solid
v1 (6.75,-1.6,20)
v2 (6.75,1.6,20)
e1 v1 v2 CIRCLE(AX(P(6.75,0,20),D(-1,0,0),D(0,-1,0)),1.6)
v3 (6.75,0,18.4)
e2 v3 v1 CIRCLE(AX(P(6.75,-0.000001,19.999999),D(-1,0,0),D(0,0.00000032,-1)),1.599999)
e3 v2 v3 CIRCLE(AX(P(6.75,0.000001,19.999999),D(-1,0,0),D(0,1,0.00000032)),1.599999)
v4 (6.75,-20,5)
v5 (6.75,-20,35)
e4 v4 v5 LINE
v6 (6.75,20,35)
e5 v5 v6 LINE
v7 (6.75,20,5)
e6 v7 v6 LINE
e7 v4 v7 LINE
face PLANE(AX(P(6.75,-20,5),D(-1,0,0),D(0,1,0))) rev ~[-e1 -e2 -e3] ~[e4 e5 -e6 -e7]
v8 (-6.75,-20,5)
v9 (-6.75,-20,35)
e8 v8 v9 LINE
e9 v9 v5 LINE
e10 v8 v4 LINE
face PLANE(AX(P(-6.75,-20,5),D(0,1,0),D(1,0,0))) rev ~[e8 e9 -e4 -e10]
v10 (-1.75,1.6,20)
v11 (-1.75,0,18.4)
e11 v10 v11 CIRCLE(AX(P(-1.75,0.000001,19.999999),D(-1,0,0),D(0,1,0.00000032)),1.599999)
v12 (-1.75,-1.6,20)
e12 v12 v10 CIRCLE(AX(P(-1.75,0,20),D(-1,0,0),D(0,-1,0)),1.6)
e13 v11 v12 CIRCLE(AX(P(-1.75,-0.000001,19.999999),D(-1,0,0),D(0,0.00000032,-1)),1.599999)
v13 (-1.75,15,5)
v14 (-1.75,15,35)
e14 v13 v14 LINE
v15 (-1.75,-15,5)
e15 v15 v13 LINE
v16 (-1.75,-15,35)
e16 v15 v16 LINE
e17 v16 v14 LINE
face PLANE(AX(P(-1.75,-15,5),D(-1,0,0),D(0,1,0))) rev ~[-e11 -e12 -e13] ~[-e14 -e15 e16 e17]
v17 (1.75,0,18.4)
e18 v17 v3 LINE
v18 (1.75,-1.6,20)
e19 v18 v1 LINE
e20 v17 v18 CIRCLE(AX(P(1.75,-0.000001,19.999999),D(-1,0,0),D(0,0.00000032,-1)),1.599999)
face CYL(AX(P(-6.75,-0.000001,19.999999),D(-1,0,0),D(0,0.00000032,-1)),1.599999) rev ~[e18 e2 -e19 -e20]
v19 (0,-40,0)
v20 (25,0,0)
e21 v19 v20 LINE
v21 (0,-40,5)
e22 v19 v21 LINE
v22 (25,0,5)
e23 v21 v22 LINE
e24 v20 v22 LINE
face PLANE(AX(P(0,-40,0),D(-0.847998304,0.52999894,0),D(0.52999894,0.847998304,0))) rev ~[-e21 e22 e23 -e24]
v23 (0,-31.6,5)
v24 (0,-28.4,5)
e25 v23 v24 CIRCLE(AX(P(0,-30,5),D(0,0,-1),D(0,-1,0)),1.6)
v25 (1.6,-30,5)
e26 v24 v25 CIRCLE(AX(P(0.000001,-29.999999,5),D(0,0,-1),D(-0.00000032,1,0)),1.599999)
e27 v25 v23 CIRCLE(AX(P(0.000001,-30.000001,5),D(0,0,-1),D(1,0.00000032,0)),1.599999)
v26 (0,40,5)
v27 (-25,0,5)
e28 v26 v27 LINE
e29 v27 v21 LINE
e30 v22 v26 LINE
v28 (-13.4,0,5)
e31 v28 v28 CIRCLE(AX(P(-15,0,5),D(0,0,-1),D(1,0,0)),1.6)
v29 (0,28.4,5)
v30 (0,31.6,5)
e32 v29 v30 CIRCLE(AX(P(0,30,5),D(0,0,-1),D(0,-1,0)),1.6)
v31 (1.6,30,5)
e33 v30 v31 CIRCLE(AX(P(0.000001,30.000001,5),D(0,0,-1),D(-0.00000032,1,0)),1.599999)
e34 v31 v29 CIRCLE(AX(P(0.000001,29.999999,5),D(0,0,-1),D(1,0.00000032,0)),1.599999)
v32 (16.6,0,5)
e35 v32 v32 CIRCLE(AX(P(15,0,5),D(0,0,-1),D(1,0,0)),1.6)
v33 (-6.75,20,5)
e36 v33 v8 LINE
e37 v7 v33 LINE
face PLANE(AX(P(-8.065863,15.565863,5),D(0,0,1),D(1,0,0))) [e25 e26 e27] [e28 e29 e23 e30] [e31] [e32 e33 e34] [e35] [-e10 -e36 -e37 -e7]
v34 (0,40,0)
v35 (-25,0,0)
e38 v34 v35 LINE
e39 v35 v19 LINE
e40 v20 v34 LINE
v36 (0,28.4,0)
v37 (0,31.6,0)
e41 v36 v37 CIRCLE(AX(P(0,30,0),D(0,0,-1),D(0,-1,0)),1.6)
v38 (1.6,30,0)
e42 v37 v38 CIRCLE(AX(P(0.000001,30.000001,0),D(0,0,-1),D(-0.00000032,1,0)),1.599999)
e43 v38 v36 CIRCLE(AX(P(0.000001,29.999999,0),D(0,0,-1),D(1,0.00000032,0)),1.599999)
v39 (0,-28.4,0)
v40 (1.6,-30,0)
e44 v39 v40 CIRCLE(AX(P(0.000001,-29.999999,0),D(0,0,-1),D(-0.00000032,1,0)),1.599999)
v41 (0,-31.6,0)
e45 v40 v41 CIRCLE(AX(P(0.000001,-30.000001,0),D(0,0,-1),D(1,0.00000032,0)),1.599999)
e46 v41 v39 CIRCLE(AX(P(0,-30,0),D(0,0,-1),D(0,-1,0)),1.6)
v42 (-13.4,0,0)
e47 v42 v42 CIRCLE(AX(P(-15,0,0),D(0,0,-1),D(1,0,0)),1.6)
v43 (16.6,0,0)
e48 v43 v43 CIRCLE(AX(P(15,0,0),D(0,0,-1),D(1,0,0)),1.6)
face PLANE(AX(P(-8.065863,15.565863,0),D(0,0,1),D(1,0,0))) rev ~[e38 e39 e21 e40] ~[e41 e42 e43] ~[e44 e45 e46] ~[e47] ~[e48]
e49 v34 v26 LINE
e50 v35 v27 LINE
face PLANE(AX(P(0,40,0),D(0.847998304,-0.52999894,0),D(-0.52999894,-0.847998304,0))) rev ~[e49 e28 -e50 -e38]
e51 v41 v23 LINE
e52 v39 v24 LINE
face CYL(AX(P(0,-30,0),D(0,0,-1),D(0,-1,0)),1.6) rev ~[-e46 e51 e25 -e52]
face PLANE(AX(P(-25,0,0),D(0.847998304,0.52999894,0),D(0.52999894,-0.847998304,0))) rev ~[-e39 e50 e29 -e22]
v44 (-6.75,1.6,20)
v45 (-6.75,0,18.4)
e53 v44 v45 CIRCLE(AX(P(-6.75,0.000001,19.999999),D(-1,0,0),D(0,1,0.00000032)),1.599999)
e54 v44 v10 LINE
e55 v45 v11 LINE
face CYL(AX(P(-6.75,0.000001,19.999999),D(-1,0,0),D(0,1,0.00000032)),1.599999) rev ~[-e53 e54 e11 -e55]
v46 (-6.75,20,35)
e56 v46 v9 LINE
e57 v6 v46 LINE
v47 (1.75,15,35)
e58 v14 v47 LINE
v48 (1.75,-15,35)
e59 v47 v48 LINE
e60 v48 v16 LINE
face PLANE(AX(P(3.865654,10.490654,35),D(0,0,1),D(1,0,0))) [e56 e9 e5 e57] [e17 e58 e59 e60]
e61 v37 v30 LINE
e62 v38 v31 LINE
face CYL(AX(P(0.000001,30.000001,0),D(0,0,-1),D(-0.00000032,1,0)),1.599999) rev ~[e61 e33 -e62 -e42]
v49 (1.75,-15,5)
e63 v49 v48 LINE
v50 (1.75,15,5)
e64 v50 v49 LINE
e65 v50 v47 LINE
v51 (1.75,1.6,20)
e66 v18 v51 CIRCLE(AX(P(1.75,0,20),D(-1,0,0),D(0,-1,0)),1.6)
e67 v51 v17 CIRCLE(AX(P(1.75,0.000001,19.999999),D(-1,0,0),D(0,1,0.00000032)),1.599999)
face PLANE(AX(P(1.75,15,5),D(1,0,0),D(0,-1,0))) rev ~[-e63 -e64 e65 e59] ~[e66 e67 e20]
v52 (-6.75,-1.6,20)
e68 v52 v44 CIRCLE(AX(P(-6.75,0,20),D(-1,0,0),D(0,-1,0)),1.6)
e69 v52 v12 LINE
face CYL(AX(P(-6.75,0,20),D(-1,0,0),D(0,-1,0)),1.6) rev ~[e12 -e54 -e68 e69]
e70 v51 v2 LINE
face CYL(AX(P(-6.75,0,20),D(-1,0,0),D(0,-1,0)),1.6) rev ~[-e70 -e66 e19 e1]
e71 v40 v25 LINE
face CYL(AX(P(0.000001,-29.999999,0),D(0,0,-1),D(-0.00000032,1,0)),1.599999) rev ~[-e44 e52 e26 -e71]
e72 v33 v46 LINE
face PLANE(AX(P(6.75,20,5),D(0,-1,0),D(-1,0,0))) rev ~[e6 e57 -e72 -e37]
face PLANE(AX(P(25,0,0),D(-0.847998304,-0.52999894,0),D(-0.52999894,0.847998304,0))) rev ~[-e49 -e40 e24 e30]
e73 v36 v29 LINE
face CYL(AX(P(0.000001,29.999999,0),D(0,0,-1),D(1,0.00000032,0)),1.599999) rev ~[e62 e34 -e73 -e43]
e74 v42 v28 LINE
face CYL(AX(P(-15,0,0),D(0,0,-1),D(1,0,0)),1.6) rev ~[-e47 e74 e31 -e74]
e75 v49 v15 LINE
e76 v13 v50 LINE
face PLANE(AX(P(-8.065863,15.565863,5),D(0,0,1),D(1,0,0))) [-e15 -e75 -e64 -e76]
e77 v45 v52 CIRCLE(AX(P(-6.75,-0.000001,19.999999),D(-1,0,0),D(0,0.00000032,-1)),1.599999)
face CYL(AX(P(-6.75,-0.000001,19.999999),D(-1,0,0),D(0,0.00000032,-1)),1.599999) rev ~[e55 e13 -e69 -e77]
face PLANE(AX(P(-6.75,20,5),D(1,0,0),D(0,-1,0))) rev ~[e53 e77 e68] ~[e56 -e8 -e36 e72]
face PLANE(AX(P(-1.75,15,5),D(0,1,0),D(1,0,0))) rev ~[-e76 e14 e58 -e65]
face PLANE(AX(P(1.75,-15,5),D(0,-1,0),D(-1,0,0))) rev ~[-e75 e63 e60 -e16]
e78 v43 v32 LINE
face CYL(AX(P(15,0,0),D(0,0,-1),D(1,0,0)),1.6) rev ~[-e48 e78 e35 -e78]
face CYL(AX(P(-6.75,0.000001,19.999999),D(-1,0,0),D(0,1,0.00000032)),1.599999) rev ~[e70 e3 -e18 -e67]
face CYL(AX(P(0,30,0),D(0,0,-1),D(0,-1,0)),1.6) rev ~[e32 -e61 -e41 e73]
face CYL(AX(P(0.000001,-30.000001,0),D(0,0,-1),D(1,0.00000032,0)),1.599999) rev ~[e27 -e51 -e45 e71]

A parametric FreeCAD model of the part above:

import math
import FreeCAD as App
import Part
import Sketcher
Q = App.Units.Quantity

doc = App.newDocument("Part")
params = doc.addObject("Spreadsheet::Sheet", "Params")
for row, (alias, value) in enumerate([
    ("sketch1_diameter", "3.2 mm"),
    ("pad1_length", "5 mm"),
    ("sketch2_height", "40 mm"),
    ("sketch2_height2", "30 mm"),
    ("sketch2_width", "13.5 mm"),
    ("sketch2_width2", "3.5 mm"),
    ("pad2_length", "30 mm"),
    ("sketch3_radius", "1.599999 mm"),
], start=1):
    params.set(f"A{row}", alias)
    params.set(f"B{row}", "=" + value)
    params.setAlias(f"B{row}", alias)

body = doc.addObject("PartDesign::Body", "Body")

# Sketch on XY plane
sketch1 = doc.addObject("Sketcher::SketchObject", "Sketch")
body.addObject(sketch1)
sketch1.AttachmentSupport = (doc.XY_Plane, [""])
sketch1.MapMode = "FlatFace"
sketch1.addGeometry([
    Part.LineSegment(App.Vector(0, 40, 0), App.Vector(-25, 0, 0)),  # 0
    Part.LineSegment(App.Vector(-25, 0, 0), App.Vector(0, -40, 0)),  # 1
    Part.LineSegment(App.Vector(0, -40, 0), App.Vector(25, 0, 0)),  # 2
    Part.LineSegment(App.Vector(25, 0, 0), App.Vector(0, 40, 0)),  # 3
    Part.Circle(App.Vector(-15, 0, 0), App.Vector(0, 0, 1), 1.6),  # 4
    Part.ArcOfCircle(Part.Circle(App.Vector(0, 30, 0), App.Vector(0, 0, 1), 1.6), math.radians(90), math.radians(270)),  # 5
    Part.ArcOfCircle(Part.Circle(App.Vector(0.000001, 30.000001, 0), App.Vector(0, 0, 1), 1.599999), math.radians(-0.000018), math.radians(90.000018)),  # 6
    Part.ArcOfCircle(Part.Circle(App.Vector(0.000001, 29.999999, 0), App.Vector(0, 0, 1), 1.599999), math.radians(-90.000018), math.radians(0.000018)),  # 7
    Part.ArcOfCircle(Part.Circle(App.Vector(0, -30, 0), App.Vector(0, 0, 1), 1.6), math.radians(90), math.radians(270)),  # 8
    Part.ArcOfCircle(Part.Circle(App.Vector(0.000001, -29.999999, 0), App.Vector(0, 0, 1), 1.599999), math.radians(-0.000018), math.radians(90.000018)),  # 9
    Part.ArcOfCircle(Part.Circle(App.Vector(0.000001, -30.000001, 0), App.Vector(0, 0, 1), 1.599999), math.radians(-90.000018), math.radians(0.000018)),  # 10
    Part.Circle(App.Vector(15, 0, 0), App.Vector(0, 0, 1), 1.6),  # 11
], False)
sketch1.addConstraint([
    Sketcher.Constraint("Coincident", 0, 2, 1, 1),
    Sketcher.Constraint("Coincident", 1, 2, 2, 1),
    Sketcher.Constraint("Coincident", 2, 2, 3, 1),
    Sketcher.Constraint("Coincident", 3, 2, 0, 1),
    Sketcher.Constraint("Tangent", 5, 1, 6, 2),
    Sketcher.Constraint("Tangent", 6, 1, 7, 2),
    Sketcher.Constraint("Tangent", 7, 1, 5, 2),
    Sketcher.Constraint("Tangent", 8, 1, 9, 2),
    Sketcher.Constraint("Tangent", 9, 1, 10, 2),
    Sketcher.Constraint("Tangent", 10, 1, 8, 2),
    Sketcher.Constraint("Equal", 4, 5),
    Sketcher.Constraint("Equal", 7, 8),
    Sketcher.Constraint("Equal", 10, 11),
    Sketcher.Constraint("Symmetric", 5, 3, 8, 3, -1, 1),
    Sketcher.Constraint("Symmetric", 4, 3, 11, 3, -1, 1),
    Sketcher.Constraint("Symmetric", 0, 2, 2, 2, -1, 1),
    Sketcher.Constraint("Symmetric", 1, 2, 3, 2, -1, 1),
    Sketcher.Constraint("Symmetric", 6, 1, 9, 1, -1),
    Sketcher.Constraint("PointOnObject", 4, 3, -1),
    Sketcher.Constraint("PointOnObject", 0, 2, -1),
    Sketcher.Constraint("PointOnObject", 1, 2, -2),
    Sketcher.Constraint("PointOnObject", 5, 1, -2),
    Sketcher.Constraint("PointOnObject", 7, 1, -2),
    Sketcher.Constraint("PointOnObject", 8, 1, -2),
    Sketcher.Constraint("PointOnObject", 10, 1, -2),
    Sketcher.Constraint("Horizontal", 7, 3, 6, 1),
    Sketcher.Constraint("Diameter", 4, Q("3.2 mm")),
    Sketcher.Constraint("DistanceX", 4, 3, -1, 1, Q("15 mm")),
    Sketcher.Constraint("DistanceY", -1, 1, 5, 3, Q("30 mm")),
    Sketcher.Constraint("DistanceX", 0, 2, -1, 1, Q("25 mm")),
    Sketcher.Constraint("DistanceY", 1, 2, -1, 1, Q("40 mm")),
])
sketch1.setExpression("Constraints[26]", "Params.sketch1_diameter")
pad1 = doc.addObject("PartDesign::Pad", "Pad")
body.addObject(pad1)
pad1.Profile = sketch1
pad1.setExpression("Length", "Params.pad1_length")

# Sketch on XY plane
sketch2 = doc.addObject("Sketcher::SketchObject", "Sketch001")
body.addObject(sketch2)
sketch2.AttachmentSupport = (doc.XY_Plane, [""])
sketch2.MapMode = "FlatFace"
sketch2.AttachmentOffset = App.Placement(App.Vector(0, 0, 5), App.Rotation())
sketch2.addGeometry([
    Part.LineSegment(App.Vector(6.75, 20, 0), App.Vector(-6.75, 20, 0)),  # 0
    Part.LineSegment(App.Vector(-6.75, 20, 0), App.Vector(-6.75, -20, 0)),  # 1
    Part.LineSegment(App.Vector(-6.75, -20, 0), App.Vector(6.75, -20, 0)),  # 2
    Part.LineSegment(App.Vector(6.75, -20, 0), App.Vector(6.75, 20, 0)),  # 3
    Part.LineSegment(App.Vector(-1.75, 15, 0), App.Vector(1.75, 15, 0)),  # 4
    Part.LineSegment(App.Vector(1.75, 15, 0), App.Vector(1.75, -15, 0)),  # 5
    Part.LineSegment(App.Vector(1.75, -15, 0), App.Vector(-1.75, -15, 0)),  # 6
    Part.LineSegment(App.Vector(-1.75, -15, 0), App.Vector(-1.75, 15, 0)),  # 7
], False)
sketch2.addConstraint([
    Sketcher.Constraint("Coincident", 0, 2, 1, 1),
    Sketcher.Constraint("Coincident", 1, 2, 2, 1),
    Sketcher.Constraint("Coincident", 2, 2, 3, 1),
    Sketcher.Constraint("Coincident", 3, 2, 0, 1),
    Sketcher.Constraint("Coincident", 4, 2, 5, 1),
    Sketcher.Constraint("Coincident", 5, 2, 6, 1),
    Sketcher.Constraint("Coincident", 6, 2, 7, 1),
    Sketcher.Constraint("Coincident", 7, 2, 4, 1),
    Sketcher.Constraint("Horizontal", 0),
    Sketcher.Constraint("Vertical", 1),
    Sketcher.Constraint("Horizontal", 2),
    Sketcher.Constraint("Vertical", 3),
    Sketcher.Constraint("Horizontal", 4),
    Sketcher.Constraint("Vertical", 5),
    Sketcher.Constraint("Horizontal", 6),
    Sketcher.Constraint("Vertical", 7),
    Sketcher.Constraint("Symmetric", 0, 2, 2, 2, -1, 1),
    Sketcher.Constraint("Symmetric", 4, 2, 6, 2, -1, 1),
    Sketcher.Constraint("DistanceY", 1, 2, 1, 1, Q("40 mm")),
    Sketcher.Constraint("DistanceY", 5, 2, 5, 1, Q("30 mm")),
    Sketcher.Constraint("DistanceX", 0, 2, 0, 1, Q("13.5 mm")),
    Sketcher.Constraint("DistanceX", 4, 1, 4, 2, Q("3.5 mm")),
])
sketch2.setExpression("Constraints[18]", "Params.sketch2_height")
sketch2.setExpression("Constraints[19]", "Params.sketch2_height2")
sketch2.setExpression("Constraints[20]", "Params.sketch2_width")
sketch2.setExpression("Constraints[21]", "Params.sketch2_width2")
pad2 = doc.addObject("PartDesign::Pad", "Pad001")
body.addObject(pad2)
pad2.Profile = sketch2
pad2.setExpression("Length", "Params.pad2_length")

# Sketch on YZ plane
sketch3 = doc.addObject("Sketcher::SketchObject", "Sketch002")
body.addObject(sketch3)
sketch3.AttachmentSupport = (doc.YZ_Plane, [""])
sketch3.MapMode = "FlatFace"
sketch3.AttachmentOffset = App.Placement(App.Vector(0, 0, -6.75), App.Rotation())
sketch3.addGeometry([
    Part.ArcOfCircle(Part.Circle(App.Vector(0.000001, 19.999999, 0), App.Vector(0, 0, 1), 1.599999), math.radians(-90.000018), math.radians(0.000018)),
    Part.ArcOfCircle(Part.Circle(App.Vector(-0.000001, 19.999999, 0), App.Vector(0, 0, 1), 1.599999), math.radians(179.999982), math.radians(270.000018)),
    Part.ArcOfCircle(Part.Circle(App.Vector(0, 20, 0), App.Vector(0, 0, 1), 1.6), math.radians(0), math.radians(180)),
], False)
sketch3.addConstraint([
    Sketcher.Constraint("Tangent", 0, 1, 1, 2),
    Sketcher.Constraint("Tangent", 1, 1, 2, 2),
    Sketcher.Constraint("Tangent", 2, 1, 0, 2),
    Sketcher.Constraint("Symmetric", 1, 1, 2, 1, -2),
    Sketcher.Constraint("PointOnObject", 0, 1, -2),
    Sketcher.Constraint("Horizontal", 2, 3, 1, 1),
    Sketcher.Constraint("Radius", 0, Q("1.599999 mm")),
    Sketcher.Constraint("DistanceY", -1, 1, 0, 3, Q("19.999999 mm")),
])
sketch3.setExpression("Constraints[6]", "Params.sketch3_radius")
pocket1 = doc.addObject("PartDesign::Pocket", "Pocket")
body.addObject(pocket1)
pocket1.Profile = sketch3
pocket1.Type = "ThroughAll"
pocket1.Reversed = True

doc.recompute()
